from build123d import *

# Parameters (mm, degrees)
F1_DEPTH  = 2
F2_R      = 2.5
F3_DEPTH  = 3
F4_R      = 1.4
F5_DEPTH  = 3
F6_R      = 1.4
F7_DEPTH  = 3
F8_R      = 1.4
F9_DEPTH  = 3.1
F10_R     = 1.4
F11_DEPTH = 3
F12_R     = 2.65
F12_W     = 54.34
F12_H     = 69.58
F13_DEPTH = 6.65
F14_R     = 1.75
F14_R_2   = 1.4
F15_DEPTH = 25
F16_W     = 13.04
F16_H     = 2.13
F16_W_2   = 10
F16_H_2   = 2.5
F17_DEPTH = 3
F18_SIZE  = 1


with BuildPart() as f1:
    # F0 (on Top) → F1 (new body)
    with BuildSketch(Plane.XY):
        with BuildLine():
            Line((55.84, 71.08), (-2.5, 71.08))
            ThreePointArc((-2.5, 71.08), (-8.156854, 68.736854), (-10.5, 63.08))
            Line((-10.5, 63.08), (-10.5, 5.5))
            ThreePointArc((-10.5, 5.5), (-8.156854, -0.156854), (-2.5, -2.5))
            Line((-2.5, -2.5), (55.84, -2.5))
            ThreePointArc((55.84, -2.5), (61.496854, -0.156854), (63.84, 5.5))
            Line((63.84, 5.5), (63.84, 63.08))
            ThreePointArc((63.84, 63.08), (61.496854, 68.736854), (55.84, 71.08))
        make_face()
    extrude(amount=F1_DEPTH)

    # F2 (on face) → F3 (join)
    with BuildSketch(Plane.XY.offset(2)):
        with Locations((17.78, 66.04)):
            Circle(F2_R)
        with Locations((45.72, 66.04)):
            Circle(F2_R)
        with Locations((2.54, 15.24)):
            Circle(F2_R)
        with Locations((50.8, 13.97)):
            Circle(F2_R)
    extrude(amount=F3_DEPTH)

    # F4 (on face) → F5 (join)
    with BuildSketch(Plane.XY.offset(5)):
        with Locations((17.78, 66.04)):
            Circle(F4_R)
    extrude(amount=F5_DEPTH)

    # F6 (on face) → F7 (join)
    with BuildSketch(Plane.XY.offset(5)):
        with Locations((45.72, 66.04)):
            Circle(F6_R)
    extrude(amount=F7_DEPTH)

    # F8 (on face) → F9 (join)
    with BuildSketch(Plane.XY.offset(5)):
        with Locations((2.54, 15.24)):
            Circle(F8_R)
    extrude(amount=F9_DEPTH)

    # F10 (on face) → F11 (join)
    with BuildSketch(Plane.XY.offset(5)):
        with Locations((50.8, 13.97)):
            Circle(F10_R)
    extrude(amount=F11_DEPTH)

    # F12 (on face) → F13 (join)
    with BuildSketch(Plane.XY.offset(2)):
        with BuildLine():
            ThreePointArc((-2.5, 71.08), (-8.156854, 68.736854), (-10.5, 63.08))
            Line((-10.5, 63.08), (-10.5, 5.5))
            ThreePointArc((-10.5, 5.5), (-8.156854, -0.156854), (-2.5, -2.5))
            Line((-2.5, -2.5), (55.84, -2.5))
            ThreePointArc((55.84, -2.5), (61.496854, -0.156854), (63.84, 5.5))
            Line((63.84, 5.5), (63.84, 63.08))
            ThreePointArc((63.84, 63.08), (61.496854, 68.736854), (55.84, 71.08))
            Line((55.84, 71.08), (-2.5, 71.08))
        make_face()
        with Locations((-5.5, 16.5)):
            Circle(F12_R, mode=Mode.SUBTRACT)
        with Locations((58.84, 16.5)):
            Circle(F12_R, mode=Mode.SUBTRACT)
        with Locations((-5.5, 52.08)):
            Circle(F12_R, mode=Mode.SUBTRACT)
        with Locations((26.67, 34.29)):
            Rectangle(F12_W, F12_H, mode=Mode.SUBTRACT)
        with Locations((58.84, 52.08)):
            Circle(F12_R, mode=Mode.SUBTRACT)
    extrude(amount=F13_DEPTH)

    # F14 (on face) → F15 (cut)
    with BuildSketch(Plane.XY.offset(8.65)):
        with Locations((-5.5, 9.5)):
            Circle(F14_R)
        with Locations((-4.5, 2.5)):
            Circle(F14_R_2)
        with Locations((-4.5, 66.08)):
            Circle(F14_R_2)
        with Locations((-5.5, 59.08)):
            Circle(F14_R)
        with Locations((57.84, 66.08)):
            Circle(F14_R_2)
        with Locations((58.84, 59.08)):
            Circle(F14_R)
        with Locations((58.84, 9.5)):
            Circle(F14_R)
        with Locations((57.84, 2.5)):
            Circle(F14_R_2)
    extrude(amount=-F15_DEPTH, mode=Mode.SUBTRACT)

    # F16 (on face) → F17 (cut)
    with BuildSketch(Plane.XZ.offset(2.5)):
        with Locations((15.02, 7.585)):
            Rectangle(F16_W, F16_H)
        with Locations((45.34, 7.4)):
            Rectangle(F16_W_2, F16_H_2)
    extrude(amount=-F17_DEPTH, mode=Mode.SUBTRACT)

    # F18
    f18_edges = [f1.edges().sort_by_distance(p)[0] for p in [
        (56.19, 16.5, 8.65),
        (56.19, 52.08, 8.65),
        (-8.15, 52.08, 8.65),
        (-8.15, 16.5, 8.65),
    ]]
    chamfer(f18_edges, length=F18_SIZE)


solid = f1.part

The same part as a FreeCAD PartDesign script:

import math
import FreeCAD as App
import Part
import Sketcher
Q = App.Units.Quantity


def edges_at(feature, points):
    """Names of the edges that pass closest to the given points."""
    edges = feature.Shape.Edges
    near = lambda p: min(range(len(edges)), key=lambda i: edges[i].distToShape(Part.Vertex(*p))[0])
    return sorted({f"Edge{near(p) + 1}" for p in points})


def add_polygon(sketch, points):
    """Adds a closed chain of lines whose ends are joined by coincident constraints."""
    first, n = sketch.GeometryCount, len(points)
    for a, b in zip(points, points[1:] + points[:1]):
        sketch.addGeometry(Part.LineSegment(App.Vector(*a, 0), App.Vector(*b, 0)), False)
    for i in range(n):
        sketch.addConstraint(Sketcher.Constraint("Coincident", first + i, 2, first + (i + 1) % n, 1))

doc = App.newDocument("Part")
params = doc.addObject("Spreadsheet::Sheet", "Params")
for row, (alias, value) in enumerate([
    ("sketch1_radius", "8.000001 mm"),
    ("sketch1_width", "58.34 mm"),
    ("sketch1_height", "57.58 mm"),
    ("pad1_length", "2 mm"),
    ("sketch2_diameter", "5 mm"),
    ("pad2_length", "3 mm"),
    ("sketch3_diameter", "2.8 mm"),
    ("pad3_length", "3 mm"),
    ("sketch4_diameter", "2.8 mm"),
    ("pad4_length", "3 mm"),
    ("sketch5_diameter", "2.8 mm"),
    ("pad5_length", "3.1 mm"),
    ("sketch6_diameter", "2.8 mm"),
    ("pad6_length", "3 mm"),
    ("sketch7_radius", "8.000001 mm"),
    ("sketch7_diameter", "5.3 mm"),
    ("sketch7_width", "58.34 mm"),
    ("sketch7_height", "57.58 mm"),
    ("pad7_length", "6.65 mm"),
    ("sketch8_diameter", "3.5 mm"),
    ("sketch8_diameter2", "2.8 mm"),
    ("pocket1_length", "25 mm"),
    ("sketch9_width", "10 mm"),
    ("sketch9_height", "2.5 mm"),
    ("sketch9_width2", "13.04 mm"),
    ("sketch9_height2", "2.13 mm"),
    ("pocket2_length", "3 mm"),
    ("chamfer_size", "1 mm"),
], start=1):
    params.set(f"A{row}", alias)
    params.set(f"B{row}", "=" + value)
    params.setAlias(f"B{row}", alias)

body = doc.addObject("PartDesign::Body", "Body")

# Sketch on XY plane
sketch1 = body.newObject("Sketcher::SketchObject", "Sketch")
sketch1.AttachmentSupport = (doc.getObject("XY_Plane"), [""])
sketch1.MapMode = "FlatFace"
sketch1.addGeometry([
    Part.LineSegment(App.Vector(56, 71, 0), App.Vector(-2, 71, 0)),  # 0
    Part.ArcOfCircle(Part.Circle(App.Vector(-2, 63, 0), App.Vector(0, 0, 1), 8), math.radians(90), math.radians(180)),  # 1
    Part.LineSegment(App.Vector(-10, 63, 0), App.Vector(-10, 6, 0)),  # 2
    Part.ArcOfCircle(Part.Circle(App.Vector(-2, 6, 0), App.Vector(0, 0, 1), 8), math.radians(-180), math.radians(-90)),  # 3
    Part.LineSegment(App.Vector(-2, -2, 0), App.Vector(56, -2, 0)),  # 4
    Part.ArcOfCircle(Part.Circle(App.Vector(56, 6, 0), App.Vector(0, 0, 1), 8), math.radians(-90), math.radians(0)),  # 5
    Part.LineSegment(App.Vector(64, 6, 0), App.Vector(64, 63, 0)),  # 6
    Part.ArcOfCircle(Part.Circle(App.Vector(56, 63, 0), App.Vector(0, 0, 1), 8), math.radians(0), math.radians(90)),  # 7
], False)
sketch1.addConstraint([
    Sketcher.Constraint("Tangent", 0, 2, 1, 1),
    Sketcher.Constraint("Tangent", 1, 2, 2, 1),
    Sketcher.Constraint("Tangent", 2, 2, 3, 1),
    Sketcher.Constraint("Tangent", 3, 2, 4, 1),
    Sketcher.Constraint("Tangent", 4, 2, 5, 1),
    Sketcher.Constraint("Tangent", 5, 2, 6, 1),
    Sketcher.Constraint("Tangent", 6, 2, 7, 1),
    Sketcher.Constraint("Tangent", 7, 2, 0, 1),
    Sketcher.Constraint("Horizontal", 0),
    Sketcher.Constraint("Vertical", 2),
    Sketcher.Constraint("Horizontal", 4),
    Sketcher.Constraint("Vertical", 6),
    Sketcher.Constraint("Equal", 1, 3),
    Sketcher.Constraint("Equal", 3, 5),
    Sketcher.Constraint("Equal", 5, 7),
    Sketcher.Constraint("Radius", 1, Q("8.000001 mm")),
    Sketcher.Constraint("DistanceX", 0, 2, 0, 1, Q("58.34 mm")),
    Sketcher.Constraint("DistanceY", 2, 2, 2, 1, Q("57.58 mm")),
    Sketcher.Constraint("DistanceX", 1, 3, -1, 1, Q("2.499999 mm")),
    Sketcher.Constraint("DistanceY", -1, 1, 3, 3, Q("5.500001 mm")),
])
sketch1.setExpression("Constraints[15]", "Params.sketch1_radius")
sketch1.setExpression("Constraints[16]", "Params.sketch1_width")
sketch1.setExpression("Constraints[17]", "Params.sketch1_height")
pad1 = body.newObject("PartDesign::Pad", "Pad")
pad1.Profile = sketch1
pad1.setExpression("Length", "Params.pad1_length")

# Sketch on XY plane
sketch2 = body.newObject("Sketcher::SketchObject", "Sketch001")
sketch2.AttachmentSupport = (doc.getObject("XY_Plane"), [""])
sketch2.MapMode = "FlatFace"
sketch2.AttachmentOffset = App.Placement(App.Vector(0, 0, 2), App.Rotation())
sketch2.addGeometry([
    Part.Circle(App.Vector(17.8, 66, 0), App.Vector(0, 0, 1), 2.5),
    Part.Circle(App.Vector(45.7, 66, 0), App.Vector(0, 0, 1), 2.5),
    Part.Circle(App.Vector(2.5, 15.2, 0), App.Vector(0, 0, 1), 2.5),
    Part.Circle(App.Vector(50.8, 14, 0), App.Vector(0, 0, 1), 2.5),
], False)
sketch2.addConstraint([
    Sketcher.Constraint("Equal", 0, 1),
    Sketcher.Constraint("Equal", 1, 2),
    Sketcher.Constraint("Equal", 2, 3),
    Sketcher.Constraint("Horizontal", 0, 3, 1, 3),
    Sketcher.Constraint("Diameter", 0, Q("5 mm")),
    Sketcher.Constraint("DistanceX", -1, 1, 3, 3, Q("50.8 mm")),
    Sketcher.Constraint("DistanceY", 2, 3, 0, 3, Q("50.8 mm")),
    Sketcher.Constraint("DistanceX", -1, 1, 0, 3, Q("17.78 mm")),
    Sketcher.Constraint("DistanceY", -1, 1, 0, 3, Q("66.04 mm")),
    Sketcher.Constraint("DistanceX", -1, 1, 1, 3, Q("45.72 mm")),
    Sketcher.Constraint("DistanceX", -1, 1, 2, 3, Q("2.54 mm")),
    Sketcher.Constraint("DistanceY", -1, 1, 3, 3, Q("13.97 mm")),
])
sketch2.setExpression("Constraints[4]", "Params.sketch2_diameter")
pad2 = body.newObject("PartDesign::Pad", "Pad001")
pad2.Profile = sketch2
pad2.setExpression("Length", "Params.pad2_length")

# Sketch on XY plane
sketch3 = body.newObject("Sketcher::SketchObject", "Sketch002")
sketch3.AttachmentSupport = (doc.getObject("XY_Plane"), [""])
sketch3.MapMode = "FlatFace"
sketch3.AttachmentOffset = App.Placement(App.Vector(0, 0, 5), App.Rotation())
sketch3.addGeometry(Part.Circle(App.Vector(17.8, 66, 0), App.Vector(0, 0, 1), 1.4), False)
sketch3.addConstraint([
    Sketcher.Constraint("Diameter", 0, Q("2.8 mm")),
    Sketcher.Constraint("DistanceX", -1, 1, 0, 3, Q("17.78 mm")),
    Sketcher.Constraint("DistanceY", -1, 1, 0, 3, Q("66.04 mm")),
])
sketch3.setExpression("Constraints[0]", "Params.sketch3_diameter")
pad3 = body.newObject("PartDesign::Pad", "Pad002")
pad3.Profile = sketch3
pad3.setExpression("Length", "Params.pad3_length")

# Sketch on XY plane
sketch4 = body.newObject("Sketcher::SketchObject", "Sketch003")
sketch4.AttachmentSupport = (doc.getObject("XY_Plane"), [""])
sketch4.MapMode = "FlatFace"
sketch4.AttachmentOffset = App.Placement(App.Vector(0, 0, 5), App.Rotation())
sketch4.addGeometry(Part.Circle(App.Vector(45.7, 66, 0), App.Vector(0, 0, 1), 1.4), False)
sketch4.addConstraint([
    Sketcher.Constraint("Diameter", 0, Q("2.8 mm")),
    Sketcher.Constraint("DistanceX", -1, 1, 0, 3, Q("45.72 mm")),
    Sketcher.Constraint("DistanceY", -1, 1, 0, 3, Q("66.04 mm")),
])
sketch4.setExpression("Constraints[0]", "Params.sketch4_diameter")
pad4 = body.newObject("PartDesign::Pad", "Pad003")
pad4.Profile = sketch4
pad4.setExpression("Length", "Params.pad4_length")

# Sketch on XY plane
sketch5 = body.newObject("Sketcher::SketchObject", "Sketch004")
sketch5.AttachmentSupport = (doc.getObject("XY_Plane"), [""])
sketch5.MapMode = "FlatFace"
sketch5.AttachmentOffset = App.Placement(App.Vector(0, 0, 5), App.Rotation())
sketch5.addGeometry(Part.Circle(App.Vector(2.5, 15.2, 0), App.Vector(0, 0, 1), 1.4), False)
sketch5.addConstraint([
    Sketcher.Constraint("Diameter", 0, Q("2.8 mm")),
    Sketcher.Constraint("DistanceX", -1, 1, 0, 3, Q("2.54 mm")),
    Sketcher.Constraint("DistanceY", -1, 1, 0, 3, Q("15.24 mm")),
])
sketch5.setExpression("Constraints[0]", "Params.sketch5_diameter")
pad5 = body.newObject("PartDesign::Pad", "Pad004")
pad5.Profile = sketch5
pad5.setExpression("Length", "Params.pad5_length")

# Sketch on XY plane
sketch6 = body.newObject("Sketcher::SketchObject", "Sketch005")
sketch6.AttachmentSupport = (doc.getObject("XY_Plane"), [""])
sketch6.MapMode = "FlatFace"
sketch6.AttachmentOffset = App.Placement(App.Vector(0, 0, 5), App.Rotation())
sketch6.addGeometry(Part.Circle(App.Vector(50.8, 14, 0), App.Vector(0, 0, 1), 1.4), False)
sketch6.addConstraint([
    Sketcher.Constraint("Diameter", 0, Q("2.8 mm")),
    Sketcher.Constraint("DistanceX", -1, 1, 0, 3, Q("50.8 mm")),
    Sketcher.Constraint("DistanceY", -1, 1, 0, 3, Q("13.97 mm")),
])
sketch6.setExpression("Constraints[0]", "Params.sketch6_diameter")
pad6 = body.newObject("PartDesign::Pad", "Pad005")
pad6.Profile = sketch6
pad6.setExpression("Length", "Params.pad6_length")

# Sketch on XY plane
sketch7 = body.newObject("Sketcher::SketchObject", "Sketch006")
sketch7.AttachmentSupport = (doc.getObject("XY_Plane"), [""])
sketch7.MapMode = "FlatFace"
sketch7.AttachmentOffset = App.Placement(App.Vector(0, 0, 2), App.Rotation())
sketch7.addGeometry(Part.ArcOfCircle(Part.Circle(App.Vector(-2.5, 63.1, 0), App.Vector(0, 0, 1), 8), math.radians(90), math.radians(180)), False)  # 0
sketch7.addGeometry(Part.LineSegment(App.Vector(-10.5, 63.1, 0), App.Vector(-10.5, 5.5, 0)), False)  # 1
sketch7.addGeometry(Part.ArcOfCircle(Part.Circle(App.Vector(-2.5, 5.5, 0), App.Vector(0, 0, 1), 8), math.radians(-180), math.radians(-90)), False)  # 2
sketch7.addGeometry(Part.LineSegment(App.Vector(-2.5, -2.5, 0), App.Vector(55.8, -2.5, 0)), False)  # 3
sketch7.addGeometry(Part.ArcOfCircle(Part.Circle(App.Vector(55.8, 5.5, 0), App.Vector(0, 0, 1), 8), math.radians(-90), math.radians(0)), False)  # 4
sketch7.addGeometry(Part.LineSegment(App.Vector(63.8, 5.5, 0), App.Vector(63.8, 63.1, 0)), False)  # 5
sketch7.addGeometry(Part.ArcOfCircle(Part.Circle(App.Vector(55.8, 63.1, 0), App.Vector(0, 0, 1), 8), math.radians(0), math.radians(90)), False)  # 6
sketch7.addGeometry(Part.LineSegment(App.Vector(55.8, 71.1, 0), App.Vector(-2.5, 71.1, 0)), False)  # 7
sketch7.addGeometry(Part.Circle(App.Vector(-5.5, 16.5, 0), App.Vector(0, 0, 1), 2.6), False)  # 8
sketch7.addGeometry(Part.Circle(App.Vector(58.8, 16.5, 0), App.Vector(0, 0, 1), 2.6), False)  # 9
sketch7.addGeometry(Part.Circle(App.Vector(-5.5, 52.1, 0), App.Vector(0, 0, 1), 2.6), False)  # 10
add_polygon(sketch7, [(53.8, -0.5), (-0.5, -0.5), (-0.5, 69.1), (53.8, 69.1)])  # lines 11-14
sketch7.addGeometry(Part.Circle(App.Vector(58.8, 52.1, 0), App.Vector(0, 0, 1), 2.6), False)  # 15
sketch7.addConstraint([
    Sketcher.Constraint("Tangent", 0, 2, 1, 1),
    Sketcher.Constraint("Tangent", 1, 2, 2, 1),
    Sketcher.Constraint("Tangent", 2, 2, 3, 1),
    Sketcher.Constraint("Tangent", 3, 2, 4, 1),
    Sketcher.Constraint("Tangent", 4, 2, 5, 1),
    Sketcher.Constraint("Tangent", 5, 2, 6, 1),
    Sketcher.Constraint("Tangent", 6, 2, 7, 1),
    Sketcher.Constraint("Tangent", 7, 2, 0, 1),
    Sketcher.Constraint("Vertical", 1),
    Sketcher.Constraint("Horizontal", 3),
    Sketcher.Constraint("Vertical", 5),
    Sketcher.Constraint("Horizontal", 7),
    Sketcher.Constraint("Horizontal", 11),
    Sketcher.Constraint("Vertical", 12),
    Sketcher.Constraint("Horizontal", 13),
    Sketcher.Constraint("Vertical", 14),
    Sketcher.Constraint("Equal", 0, 2),
    Sketcher.Constraint("Equal", 2, 4),
    Sketcher.Constraint("Equal", 4, 6),
    Sketcher.Constraint("Equal", 8, 9),
    Sketcher.Constraint("Equal", 9, 10),
    Sketcher.Constraint("Equal", 10, 15),
    Sketcher.Constraint("Horizontal", 8, 3, 9, 3),
    Sketcher.Constraint("Horizontal", 10, 3, 15, 3),
    Sketcher.Constraint("Vertical", 8, 3, 10, 3),
    Sketcher.Constraint("Vertical", 9, 3, 15, 3),
    Sketcher.Constraint("Radius", 0, Q("8.000001 mm")),
    Sketcher.Constraint("Diameter", 8, Q("5.3 mm")),
    Sketcher.Constraint("DistanceX", 8, 3, 2, 3, Q("3.000001 mm")),
    Sketcher.Constraint("DistanceY", 2, 3, 8, 3, Q("10.999999 mm")),
    Sketcher.Constraint("DistanceX", 4, 3, 9, 3, Q("3.000001 mm")),
    Sketcher.Constraint("DistanceY", 10, 3, 0, 3, Q("10.999999 mm")),
    Sketcher.Constraint("DistanceX", 2, 2, 11, 2, Q("2 mm")),
    Sketcher.Constraint("DistanceY", 2, 2, 11, 2, Q("2 mm")),
    Sketcher.Constraint("DistanceY", 12, 2, 7, 2, Q("2 mm")),
    Sketcher.Constraint("DistanceX", 13, 2, 6, 2, Q("2 mm")),
    Sketcher.Constraint("DistanceX", 3, 1, 3, 2, Q("58.34 mm")),
    Sketcher.Constraint("DistanceY", 1, 2, 1, 1, Q("57.58 mm")),
    Sketcher.Constraint("DistanceX", 0, 3, -1, 1, Q("2.499999 mm")),
    Sketcher.Constraint("DistanceY", -1, 1, 2, 3, Q("5.500001 mm")),
])
sketch7.setExpression("Constraints[30]", "Params.sketch7_radius")
sketch7.setExpression("Constraints[31]", "Params.sketch7_diameter")
sketch7.setExpression("Constraints[40]", "Params.sketch7_width")
sketch7.setExpression("Constraints[41]", "Params.sketch7_height")
pad7 = body.newObject("PartDesign::Pad", "Pad006")
pad7.Profile = sketch7
pad7.setExpression("Length", "Params.pad7_length")

# Sketch on XY plane
sketch8 = body.newObject("Sketcher::SketchObject", "Sketch007")
sketch8.AttachmentSupport = (doc.getObject("XY_Plane"), [""])
sketch8.MapMode = "FlatFace"
sketch8.AttachmentOffset = App.Placement(App.Vector(0, 0, 8.65), App.Rotation())
sketch8.addGeometry([
    Part.Circle(App.Vector(-5.5, 9.5, 0), App.Vector(0, 0, 1), 1.8),  # 0
    Part.Circle(App.Vector(-4.5, 2.5, 0), App.Vector(0, 0, 1), 1.4),  # 1
    Part.Circle(App.Vector(-4.5, 66.1, 0), App.Vector(0, 0, 1), 1.4),  # 2
    Part.Circle(App.Vector(-5.5, 59.1, 0), App.Vector(0, 0, 1), 1.8),  # 3
    Part.Circle(App.Vector(57.8, 66.1, 0), App.Vector(0, 0, 1), 1.4),  # 4
    Part.Circle(App.Vector(58.8, 59.1, 0), App.Vector(0, 0, 1), 1.8),  # 5
    Part.Circle(App.Vector(58.8, 9.5, 0), App.Vector(0, 0, 1), 1.8),  # 6
    Part.Circle(App.Vector(57.8, 2.5, 0), App.Vector(0, 0, 1), 1.4),  # 7
], False)
sketch8.addConstraint([
    Sketcher.Constraint("Equal", 1, 2),
    Sketcher.Constraint("Equal", 0, 3),
    Sketcher.Constraint("Equal", 2, 4),
    Sketcher.Constraint("Equal", 3, 5),
    Sketcher.Constraint("Equal", 5, 6),
    Sketcher.Constraint("Equal", 4, 7),
    Sketcher.Constraint("Horizontal", 2, 3, 4, 3),
    Sketcher.Constraint("Horizontal", 3, 3, 5, 3),
    Sketcher.Constraint("Horizontal", 0, 3, 6, 3),
    Sketcher.Constraint("Horizontal", 1, 3, 7, 3),
    Sketcher.Constraint("Vertical", 1, 3, 2, 3),
    Sketcher.Constraint("Vertical", 0, 3, 3, 3),
    Sketcher.Constraint("Vertical", 5, 3, 6, 3),
    Sketcher.Constraint("Vertical", 4, 3, 7, 3),
    Sketcher.Constraint("Diameter", 0, Q("3.5 mm")),
    Sketcher.Constraint("Diameter", 1, Q("2.8 mm")),
    Sketcher.Constraint("DistanceX", 0, 3, 1, 3, Q("1 mm")),
    Sketcher.Constraint("DistanceY", 1, 3, 0, 3, Q("7 mm")),
    Sketcher.Constraint("DistanceY", 3, 3, 2, 3, Q("7 mm")),
    Sketcher.Constraint("DistanceX", 4, 3, 5, 3, Q("1 mm")),
    Sketcher.Constraint("DistanceX", 0, 3, -1, 1, Q("5.5 mm")),
    Sketcher.Constraint("DistanceY", -1, 1, 0, 3, Q("9.5 mm")),
    Sketcher.Constraint("DistanceY", -1, 1, 2, 3, Q("66.08 mm")),
    Sketcher.Constraint("DistanceX", -1, 1, 4, 3, Q("57.84 mm")),
])
sketch8.setExpression("Constraints[14]", "Params.sketch8_diameter")
sketch8.setExpression("Constraints[15]", "Params.sketch8_diameter2")
pocket1 = body.newObject("PartDesign::Pocket", "Pocket")
pocket1.Profile = sketch8
pocket1.setExpression("Length", "Params.pocket1_length")

# Sketch on XZ plane
sketch9 = body.newObject("Sketcher::SketchObject", "Sketch008")
sketch9.AttachmentSupport = (doc.getObject("XZ_Plane"), [""])
sketch9.MapMode = "FlatFace"
sketch9.AttachmentOffset = App.Placement(App.Vector(0, 0, 2.5), App.Rotation())
add_polygon(sketch9, [(8.5, 8.7), (8.5, 6.5), (21.5, 6.5), (21.5, 8.7)])  # lines 0-3
add_polygon(sketch9, [(40.3, 8.7), (40.3, 6.2), (50.3, 6.2), (50.3, 8.7)])  # lines 4-7
sketch9.addConstraint([
    Sketcher.Constraint("Vertical", 0),
    Sketcher.Constraint("Horizontal", 1),
    Sketcher.Constraint("Vertical", 2),
    Sketcher.Constraint("Horizontal", 3),
    Sketcher.Constraint("Vertical", 4),
    Sketcher.Constraint("Horizontal", 5),
    Sketcher.Constraint("Vertical", 6),
    Sketcher.Constraint("Horizontal", 7),
    Sketcher.Constraint("Horizontal", 3, 2, 6, 2),
    Sketcher.Constraint("DistanceX", 5, 1, 5, 2, Q("10 mm")),
    Sketcher.Constraint("DistanceY", 4, 2, 4, 1, Q("2.5 mm")),
    Sketcher.Constraint("DistanceX", 1, 1, 1, 2, Q("13.04 mm")),
    Sketcher.Constraint("DistanceY", 0, 2, 0, 1, Q("2.13 mm")),
    Sketcher.Constraint("DistanceX", -1, 1, 0, 2, Q("8.5 mm")),
    Sketcher.Constraint("DistanceX", 1, 2, 4, 2, Q("18.8 mm")),
    Sketcher.Constraint("DistanceY", -1, 1, 0, 2, Q("6.52 mm")),
])
sketch9.setExpression("Constraints[17]", "Params.sketch9_width")
sketch9.setExpression("Constraints[18]", "Params.sketch9_height")
sketch9.setExpression("Constraints[19]", "Params.sketch9_width2")
sketch9.setExpression("Constraints[20]", "Params.sketch9_height2")
pocket2 = body.newObject("PartDesign::Pocket", "Pocket001")
pocket2.Profile = sketch9
pocket2.setExpression("Length", "Params.pocket2_length")
doc.recompute()

chamfer = body.newObject("PartDesign::Chamfer", "Chamfer")
chamfer.Base = (pocket2, edges_at(pocket2, [
    (56.19, 16.5, 8.65),
    (56.19, 52.08, 8.65),
    (-8.15, 52.08, 8.65),
    (-8.15, 16.5, 8.65),
]))
chamfer.setExpression("Size", "Params.chamfer_size")

doc.recompute()
